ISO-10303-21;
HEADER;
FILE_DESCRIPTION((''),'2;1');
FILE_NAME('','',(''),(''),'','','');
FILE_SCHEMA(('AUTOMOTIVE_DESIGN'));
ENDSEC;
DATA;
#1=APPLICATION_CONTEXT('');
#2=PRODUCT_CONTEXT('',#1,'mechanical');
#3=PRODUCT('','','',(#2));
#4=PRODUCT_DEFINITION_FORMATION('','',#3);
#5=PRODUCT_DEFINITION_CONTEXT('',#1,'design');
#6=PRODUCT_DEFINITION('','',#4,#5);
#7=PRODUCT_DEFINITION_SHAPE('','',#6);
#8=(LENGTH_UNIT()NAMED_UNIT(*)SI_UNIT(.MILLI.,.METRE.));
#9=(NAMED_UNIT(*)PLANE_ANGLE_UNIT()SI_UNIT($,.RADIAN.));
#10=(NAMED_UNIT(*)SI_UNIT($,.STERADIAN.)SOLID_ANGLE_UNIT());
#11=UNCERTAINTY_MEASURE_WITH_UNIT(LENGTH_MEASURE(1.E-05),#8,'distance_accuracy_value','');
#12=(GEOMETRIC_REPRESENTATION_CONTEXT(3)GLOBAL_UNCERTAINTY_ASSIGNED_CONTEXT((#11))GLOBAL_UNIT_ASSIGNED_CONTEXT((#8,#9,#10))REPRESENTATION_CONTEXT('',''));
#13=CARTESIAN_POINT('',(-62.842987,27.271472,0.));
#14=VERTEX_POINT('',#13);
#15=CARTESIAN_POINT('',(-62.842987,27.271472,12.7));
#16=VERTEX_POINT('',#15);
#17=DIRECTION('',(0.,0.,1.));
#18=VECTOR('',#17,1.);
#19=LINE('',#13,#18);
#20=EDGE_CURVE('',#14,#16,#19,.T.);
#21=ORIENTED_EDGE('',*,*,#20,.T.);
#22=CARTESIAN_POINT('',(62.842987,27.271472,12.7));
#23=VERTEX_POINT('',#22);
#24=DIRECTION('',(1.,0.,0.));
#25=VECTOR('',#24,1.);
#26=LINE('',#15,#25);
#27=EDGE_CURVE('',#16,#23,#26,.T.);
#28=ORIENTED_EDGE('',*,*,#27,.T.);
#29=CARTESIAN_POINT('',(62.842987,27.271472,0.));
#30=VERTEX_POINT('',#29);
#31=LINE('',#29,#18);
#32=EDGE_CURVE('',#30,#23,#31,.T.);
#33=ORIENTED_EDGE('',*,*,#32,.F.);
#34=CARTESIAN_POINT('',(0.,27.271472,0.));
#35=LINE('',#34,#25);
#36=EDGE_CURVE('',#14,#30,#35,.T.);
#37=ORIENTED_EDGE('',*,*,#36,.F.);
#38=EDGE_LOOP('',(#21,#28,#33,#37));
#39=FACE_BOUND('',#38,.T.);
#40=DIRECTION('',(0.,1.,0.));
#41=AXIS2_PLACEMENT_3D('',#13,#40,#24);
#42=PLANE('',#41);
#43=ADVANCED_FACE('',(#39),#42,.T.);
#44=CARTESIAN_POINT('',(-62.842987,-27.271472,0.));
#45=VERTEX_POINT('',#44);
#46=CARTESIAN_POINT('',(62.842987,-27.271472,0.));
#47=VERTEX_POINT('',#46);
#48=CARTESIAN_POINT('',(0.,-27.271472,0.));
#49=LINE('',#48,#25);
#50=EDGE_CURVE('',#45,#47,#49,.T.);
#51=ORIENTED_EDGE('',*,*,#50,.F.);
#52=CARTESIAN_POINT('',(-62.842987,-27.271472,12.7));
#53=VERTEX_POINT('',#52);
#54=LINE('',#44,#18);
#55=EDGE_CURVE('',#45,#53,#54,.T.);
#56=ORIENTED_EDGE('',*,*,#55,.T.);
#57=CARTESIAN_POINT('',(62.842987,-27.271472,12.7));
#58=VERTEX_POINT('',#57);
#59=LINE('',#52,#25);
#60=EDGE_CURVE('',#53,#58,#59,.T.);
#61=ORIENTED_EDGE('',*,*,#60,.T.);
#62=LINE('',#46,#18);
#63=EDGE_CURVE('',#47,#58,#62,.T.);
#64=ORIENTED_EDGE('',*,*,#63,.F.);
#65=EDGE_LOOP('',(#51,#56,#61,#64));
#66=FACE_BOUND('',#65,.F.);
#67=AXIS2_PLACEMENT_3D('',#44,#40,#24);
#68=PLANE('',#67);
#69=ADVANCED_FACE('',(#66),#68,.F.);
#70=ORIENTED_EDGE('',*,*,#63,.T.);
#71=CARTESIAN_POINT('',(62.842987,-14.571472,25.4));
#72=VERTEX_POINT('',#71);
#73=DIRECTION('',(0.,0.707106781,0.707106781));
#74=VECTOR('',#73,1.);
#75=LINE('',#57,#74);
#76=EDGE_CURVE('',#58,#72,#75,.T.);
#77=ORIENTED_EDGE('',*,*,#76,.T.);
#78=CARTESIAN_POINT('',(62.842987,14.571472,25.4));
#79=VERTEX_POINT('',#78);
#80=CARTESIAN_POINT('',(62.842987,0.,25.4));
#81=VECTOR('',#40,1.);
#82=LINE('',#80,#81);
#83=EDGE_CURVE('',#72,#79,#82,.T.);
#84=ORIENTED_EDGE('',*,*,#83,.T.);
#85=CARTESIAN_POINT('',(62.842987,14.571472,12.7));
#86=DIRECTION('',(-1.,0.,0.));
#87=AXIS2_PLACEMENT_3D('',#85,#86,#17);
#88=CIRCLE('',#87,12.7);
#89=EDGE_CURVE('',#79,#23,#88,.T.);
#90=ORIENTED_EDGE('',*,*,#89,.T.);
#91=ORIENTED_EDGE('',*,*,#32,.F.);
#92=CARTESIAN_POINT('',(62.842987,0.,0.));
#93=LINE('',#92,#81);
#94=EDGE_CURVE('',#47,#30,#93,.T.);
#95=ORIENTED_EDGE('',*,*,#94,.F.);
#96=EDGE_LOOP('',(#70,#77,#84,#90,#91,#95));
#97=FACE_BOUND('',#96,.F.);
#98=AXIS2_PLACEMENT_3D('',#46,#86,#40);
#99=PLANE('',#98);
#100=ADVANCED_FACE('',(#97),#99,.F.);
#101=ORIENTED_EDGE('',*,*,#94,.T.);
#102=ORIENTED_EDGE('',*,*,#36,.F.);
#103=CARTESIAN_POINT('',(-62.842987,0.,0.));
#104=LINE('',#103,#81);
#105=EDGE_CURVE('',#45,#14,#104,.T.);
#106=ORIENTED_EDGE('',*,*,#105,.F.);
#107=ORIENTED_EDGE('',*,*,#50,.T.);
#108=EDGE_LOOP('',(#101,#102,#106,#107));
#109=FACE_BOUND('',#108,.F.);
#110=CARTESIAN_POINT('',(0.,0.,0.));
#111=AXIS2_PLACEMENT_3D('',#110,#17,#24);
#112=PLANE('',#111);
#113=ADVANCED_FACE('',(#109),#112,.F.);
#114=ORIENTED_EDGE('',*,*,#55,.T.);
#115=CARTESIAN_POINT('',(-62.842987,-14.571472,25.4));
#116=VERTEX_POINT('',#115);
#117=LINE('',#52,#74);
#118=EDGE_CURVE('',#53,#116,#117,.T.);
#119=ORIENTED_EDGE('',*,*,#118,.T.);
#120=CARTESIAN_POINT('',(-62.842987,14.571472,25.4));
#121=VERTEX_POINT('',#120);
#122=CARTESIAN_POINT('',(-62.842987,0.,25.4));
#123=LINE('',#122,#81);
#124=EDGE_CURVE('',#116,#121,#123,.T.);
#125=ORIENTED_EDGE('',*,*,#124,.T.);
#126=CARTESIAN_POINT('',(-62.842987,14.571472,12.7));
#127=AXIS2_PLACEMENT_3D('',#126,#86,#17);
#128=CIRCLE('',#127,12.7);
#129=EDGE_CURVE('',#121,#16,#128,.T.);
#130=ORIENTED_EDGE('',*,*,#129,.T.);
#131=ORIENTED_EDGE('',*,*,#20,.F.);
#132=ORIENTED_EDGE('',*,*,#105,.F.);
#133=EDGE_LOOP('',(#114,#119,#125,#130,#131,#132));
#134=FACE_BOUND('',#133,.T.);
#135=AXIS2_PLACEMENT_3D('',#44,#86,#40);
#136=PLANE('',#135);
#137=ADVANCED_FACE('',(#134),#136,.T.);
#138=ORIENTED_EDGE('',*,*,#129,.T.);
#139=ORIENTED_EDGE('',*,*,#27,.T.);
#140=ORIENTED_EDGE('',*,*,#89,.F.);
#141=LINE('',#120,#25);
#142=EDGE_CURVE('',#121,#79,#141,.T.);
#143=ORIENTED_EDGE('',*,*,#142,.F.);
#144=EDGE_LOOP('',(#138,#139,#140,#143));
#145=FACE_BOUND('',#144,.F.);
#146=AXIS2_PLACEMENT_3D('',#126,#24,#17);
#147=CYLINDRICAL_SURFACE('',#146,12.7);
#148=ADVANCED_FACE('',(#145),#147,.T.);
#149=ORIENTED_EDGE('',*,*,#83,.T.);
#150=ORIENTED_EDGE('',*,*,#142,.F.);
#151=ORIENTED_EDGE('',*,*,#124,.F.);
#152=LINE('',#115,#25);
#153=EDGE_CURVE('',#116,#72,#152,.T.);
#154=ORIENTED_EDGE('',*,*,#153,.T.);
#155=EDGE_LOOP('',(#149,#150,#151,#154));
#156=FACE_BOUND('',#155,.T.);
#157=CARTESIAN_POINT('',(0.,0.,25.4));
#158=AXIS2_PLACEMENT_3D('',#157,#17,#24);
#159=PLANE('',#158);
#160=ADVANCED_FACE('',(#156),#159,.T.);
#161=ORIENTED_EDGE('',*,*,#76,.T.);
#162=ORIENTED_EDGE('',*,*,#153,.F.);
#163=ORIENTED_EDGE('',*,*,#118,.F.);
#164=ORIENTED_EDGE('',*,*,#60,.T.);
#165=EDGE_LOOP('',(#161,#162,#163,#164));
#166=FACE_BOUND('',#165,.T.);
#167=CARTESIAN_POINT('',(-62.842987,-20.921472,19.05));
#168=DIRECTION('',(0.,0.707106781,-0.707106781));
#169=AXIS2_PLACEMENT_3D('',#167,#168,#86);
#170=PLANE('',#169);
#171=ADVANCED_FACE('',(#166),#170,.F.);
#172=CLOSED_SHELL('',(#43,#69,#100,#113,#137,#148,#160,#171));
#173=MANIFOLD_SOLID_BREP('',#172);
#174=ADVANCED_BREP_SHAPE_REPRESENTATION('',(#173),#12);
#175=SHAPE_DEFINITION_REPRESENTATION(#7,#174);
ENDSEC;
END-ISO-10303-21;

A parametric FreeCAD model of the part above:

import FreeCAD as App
import Part
import Sketcher
Q = App.Units.Quantity


def edges_at(feature, points):
    """Names of the edges that pass closest to the given points."""
    edges = feature.Shape.Edges
    near = lambda p: min(range(len(edges)), key=lambda i: edges[i].distToShape(Part.Vertex(*p))[0])
    return sorted({f"Edge{near(p) + 1}" for p in points})

doc = App.newDocument("Part")
body = doc.addObject("PartDesign::Body", "Body")

sketch1 = body.newObject("Sketcher::SketchObject", "Sketch")
sketch1.AttachmentSupport = (doc.getObject("XY_Plane"), [""])
sketch1.MapMode = "FlatFace"
sketch1.addGeometry([
    Part.LineSegment(App.Vector(-63, 27, 0), App.Vector(-63, -27, 0)),
    Part.LineSegment(App.Vector(-63, -27, 0), App.Vector(63, -27, 0)),
    Part.LineSegment(App.Vector(63, -27, 0), App.Vector(63, 27, 0)),
    Part.LineSegment(App.Vector(63, 27, 0), App.Vector(-63, 27, 0)),
], False)
sketch1.addConstraint([
    Sketcher.Constraint("Coincident", 0, 2, 1, 1),
    Sketcher.Constraint("Coincident", 1, 2, 2, 1),
    Sketcher.Constraint("Coincident", 2, 2, 3, 1),
    Sketcher.Constraint("Coincident", 3, 2, 0, 1),
    Sketcher.Constraint("Vertical", 0),
    Sketcher.Constraint("Horizontal", 1),
    Sketcher.Constraint("Vertical", 2),
    Sketcher.Constraint("Horizontal", 3),
    Sketcher.Constraint("Symmetric", 0, 2, 2, 2, -1, 1),
    Sketcher.Constraint("DistanceX", 1, 1, 1, 2, Q("125.685974 mm")),
    Sketcher.Constraint("DistanceY", 0, 2, 0, 1, Q("54.542944 mm")),
])
pad1 = body.newObject("PartDesign::Pad", "Pad")
pad1.Profile = sketch1
pad1.Length = Q("1 in")
doc.recompute()

chamfer = body.newObject("PartDesign::Chamfer", "Chamfer")
chamfer.Base = (pad1, edges_at(pad1, [(0, -27.271, 25.4)]))
chamfer.Size = Q("0.5 in")
doc.recompute()

fillet = body.newObject("PartDesign::Fillet", "Fillet")
fillet.Base = (chamfer, edges_at(chamfer, [(0, 27.271, 25.4)]))
fillet.Radius = Q("0.5 in")

doc.recompute()
